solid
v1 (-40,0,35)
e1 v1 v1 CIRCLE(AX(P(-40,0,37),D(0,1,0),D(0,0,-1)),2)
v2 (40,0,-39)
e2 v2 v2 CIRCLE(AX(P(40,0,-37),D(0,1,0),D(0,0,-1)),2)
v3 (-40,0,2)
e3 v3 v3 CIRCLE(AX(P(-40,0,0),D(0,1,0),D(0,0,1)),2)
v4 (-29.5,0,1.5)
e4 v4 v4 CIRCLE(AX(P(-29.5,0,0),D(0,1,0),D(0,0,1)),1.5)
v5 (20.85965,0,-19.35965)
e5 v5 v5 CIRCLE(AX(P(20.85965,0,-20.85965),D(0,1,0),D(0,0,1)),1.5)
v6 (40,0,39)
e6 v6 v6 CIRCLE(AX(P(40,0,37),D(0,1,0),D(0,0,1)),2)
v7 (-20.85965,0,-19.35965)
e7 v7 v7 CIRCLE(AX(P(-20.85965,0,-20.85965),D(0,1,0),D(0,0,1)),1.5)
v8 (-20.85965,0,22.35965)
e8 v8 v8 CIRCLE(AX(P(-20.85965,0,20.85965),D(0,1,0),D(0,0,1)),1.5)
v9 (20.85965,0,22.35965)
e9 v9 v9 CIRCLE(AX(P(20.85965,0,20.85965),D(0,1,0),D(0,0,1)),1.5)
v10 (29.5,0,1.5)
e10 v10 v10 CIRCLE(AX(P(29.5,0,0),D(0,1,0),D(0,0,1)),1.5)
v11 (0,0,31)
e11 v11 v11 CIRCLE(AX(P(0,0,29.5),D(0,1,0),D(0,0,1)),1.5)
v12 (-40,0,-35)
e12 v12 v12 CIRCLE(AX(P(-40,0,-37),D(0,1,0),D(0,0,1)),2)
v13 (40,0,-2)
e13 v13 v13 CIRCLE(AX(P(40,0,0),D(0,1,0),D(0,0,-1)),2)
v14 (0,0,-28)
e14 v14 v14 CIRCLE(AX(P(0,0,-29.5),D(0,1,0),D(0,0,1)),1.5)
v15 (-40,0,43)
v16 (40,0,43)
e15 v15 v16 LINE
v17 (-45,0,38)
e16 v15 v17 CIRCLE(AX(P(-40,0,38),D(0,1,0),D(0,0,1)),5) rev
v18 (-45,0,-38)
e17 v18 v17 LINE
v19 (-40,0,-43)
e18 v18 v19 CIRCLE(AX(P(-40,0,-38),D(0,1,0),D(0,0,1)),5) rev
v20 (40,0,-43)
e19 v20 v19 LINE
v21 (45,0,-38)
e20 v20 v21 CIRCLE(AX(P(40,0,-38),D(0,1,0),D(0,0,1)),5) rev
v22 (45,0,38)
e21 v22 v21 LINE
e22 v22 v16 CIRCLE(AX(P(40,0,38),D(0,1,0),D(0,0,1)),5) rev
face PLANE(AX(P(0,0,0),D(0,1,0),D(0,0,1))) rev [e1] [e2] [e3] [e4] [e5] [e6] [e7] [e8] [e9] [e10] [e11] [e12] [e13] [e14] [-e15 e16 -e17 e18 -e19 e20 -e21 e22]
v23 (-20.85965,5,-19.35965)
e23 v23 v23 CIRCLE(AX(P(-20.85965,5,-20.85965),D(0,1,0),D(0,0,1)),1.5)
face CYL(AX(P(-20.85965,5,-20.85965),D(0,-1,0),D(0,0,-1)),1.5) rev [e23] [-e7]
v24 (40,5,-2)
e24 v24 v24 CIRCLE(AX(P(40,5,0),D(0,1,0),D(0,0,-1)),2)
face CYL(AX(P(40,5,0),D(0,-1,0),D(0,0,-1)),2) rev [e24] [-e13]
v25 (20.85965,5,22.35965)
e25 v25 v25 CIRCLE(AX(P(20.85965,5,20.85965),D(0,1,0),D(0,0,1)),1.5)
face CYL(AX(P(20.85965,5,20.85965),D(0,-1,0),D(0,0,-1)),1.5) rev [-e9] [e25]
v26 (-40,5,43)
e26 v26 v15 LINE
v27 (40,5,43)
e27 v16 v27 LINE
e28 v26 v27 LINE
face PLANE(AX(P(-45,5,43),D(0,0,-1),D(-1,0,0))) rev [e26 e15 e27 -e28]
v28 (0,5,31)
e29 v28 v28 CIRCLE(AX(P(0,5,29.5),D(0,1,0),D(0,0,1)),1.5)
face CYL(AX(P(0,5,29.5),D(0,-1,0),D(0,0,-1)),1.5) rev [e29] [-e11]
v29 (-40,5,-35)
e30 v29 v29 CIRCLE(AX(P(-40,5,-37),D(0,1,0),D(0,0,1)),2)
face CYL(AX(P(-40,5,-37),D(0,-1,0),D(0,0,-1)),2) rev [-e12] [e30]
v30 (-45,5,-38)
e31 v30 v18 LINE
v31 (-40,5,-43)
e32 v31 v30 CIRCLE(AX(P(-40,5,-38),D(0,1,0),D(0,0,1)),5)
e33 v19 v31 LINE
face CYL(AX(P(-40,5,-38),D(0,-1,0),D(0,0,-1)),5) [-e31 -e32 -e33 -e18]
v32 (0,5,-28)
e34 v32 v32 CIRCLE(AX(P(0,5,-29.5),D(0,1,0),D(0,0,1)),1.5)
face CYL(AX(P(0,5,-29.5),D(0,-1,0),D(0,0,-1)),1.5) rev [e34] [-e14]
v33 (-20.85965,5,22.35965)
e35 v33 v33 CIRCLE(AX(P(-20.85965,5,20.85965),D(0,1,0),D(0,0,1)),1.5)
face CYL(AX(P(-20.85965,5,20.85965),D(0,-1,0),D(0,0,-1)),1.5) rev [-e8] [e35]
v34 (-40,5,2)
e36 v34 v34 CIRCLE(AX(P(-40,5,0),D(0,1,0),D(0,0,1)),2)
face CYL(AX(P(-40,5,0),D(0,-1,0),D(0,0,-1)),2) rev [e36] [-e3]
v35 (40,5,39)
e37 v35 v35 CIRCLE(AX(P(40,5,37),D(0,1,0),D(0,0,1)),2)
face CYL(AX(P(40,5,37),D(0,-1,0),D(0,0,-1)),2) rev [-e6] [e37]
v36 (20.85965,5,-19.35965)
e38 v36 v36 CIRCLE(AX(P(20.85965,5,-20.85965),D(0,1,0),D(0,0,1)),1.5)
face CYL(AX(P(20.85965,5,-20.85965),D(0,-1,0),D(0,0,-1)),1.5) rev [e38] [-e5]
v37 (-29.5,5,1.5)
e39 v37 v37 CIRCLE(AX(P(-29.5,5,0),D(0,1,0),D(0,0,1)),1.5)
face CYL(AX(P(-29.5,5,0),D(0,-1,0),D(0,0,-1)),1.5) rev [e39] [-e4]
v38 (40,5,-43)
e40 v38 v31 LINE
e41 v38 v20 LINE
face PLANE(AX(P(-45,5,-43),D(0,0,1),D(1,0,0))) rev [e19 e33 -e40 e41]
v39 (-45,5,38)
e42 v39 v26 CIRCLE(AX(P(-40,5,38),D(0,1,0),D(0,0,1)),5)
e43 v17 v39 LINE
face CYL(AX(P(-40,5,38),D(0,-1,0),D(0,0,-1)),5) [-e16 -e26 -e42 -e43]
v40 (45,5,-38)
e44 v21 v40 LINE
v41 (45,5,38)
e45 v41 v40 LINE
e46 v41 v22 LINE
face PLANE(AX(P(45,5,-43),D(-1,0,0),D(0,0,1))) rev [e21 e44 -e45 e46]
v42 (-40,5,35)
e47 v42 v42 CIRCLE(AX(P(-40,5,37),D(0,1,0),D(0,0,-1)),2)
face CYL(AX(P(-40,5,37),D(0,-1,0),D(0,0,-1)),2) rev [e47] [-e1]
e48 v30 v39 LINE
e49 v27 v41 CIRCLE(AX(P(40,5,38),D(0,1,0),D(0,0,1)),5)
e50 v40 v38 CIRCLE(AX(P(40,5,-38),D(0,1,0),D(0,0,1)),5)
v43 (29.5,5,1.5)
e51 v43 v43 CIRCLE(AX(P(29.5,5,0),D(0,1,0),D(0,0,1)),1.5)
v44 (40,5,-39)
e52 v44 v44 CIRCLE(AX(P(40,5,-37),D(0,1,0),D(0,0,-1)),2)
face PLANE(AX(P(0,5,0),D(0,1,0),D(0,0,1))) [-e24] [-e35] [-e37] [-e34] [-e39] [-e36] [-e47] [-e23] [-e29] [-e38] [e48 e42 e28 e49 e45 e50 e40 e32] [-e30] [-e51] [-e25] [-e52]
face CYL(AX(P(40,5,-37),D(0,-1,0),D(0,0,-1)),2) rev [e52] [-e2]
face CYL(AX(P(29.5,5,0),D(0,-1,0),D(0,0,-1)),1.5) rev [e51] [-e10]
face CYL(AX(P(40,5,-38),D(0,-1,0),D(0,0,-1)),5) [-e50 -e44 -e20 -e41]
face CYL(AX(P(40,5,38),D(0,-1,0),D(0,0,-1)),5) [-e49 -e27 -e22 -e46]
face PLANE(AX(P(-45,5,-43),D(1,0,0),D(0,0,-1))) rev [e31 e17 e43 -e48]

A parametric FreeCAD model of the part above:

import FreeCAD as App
import Part
import Sketcher
Q = App.Units.Quantity


def edges_at(feature, points):
    """Names of the edges that pass closest to the given points."""
    edges = feature.Shape.Edges
    near = lambda p: min(range(len(edges)), key=lambda i: edges[i].distToShape(Part.Vertex(*p))[0])
    return sorted({f"Edge{near(p) + 1}" for p in points})


def add_polygon(sketch, points):
    """Adds a closed chain of lines whose ends are joined by coincident constraints."""
    first, n = sketch.GeometryCount, len(points)
    for a, b in zip(points, points[1:] + points[:1]):
        sketch.addGeometry(Part.LineSegment(App.Vector(*a, 0), App.Vector(*b, 0)), False)
    for i in range(n):
        sketch.addConstraint(Sketcher.Constraint("Coincident", first + i, 2, first + (i + 1) % n, 1))

doc = App.newDocument("Part")
body = doc.addObject("PartDesign::Body", "Body")

sketch1 = body.newObject("Sketcher::SketchObject", "Sketch")
sketch1.AttachmentSupport = (doc.getObject("XZ_Plane"), [""])
sketch1.MapMode = "FlatFace"
add_polygon(sketch1, [(-45, -43), (-45, 43), (45, 43), (45, -43)])
sketch1.addGeometry(Part.Circle(App.Vector(-40, 37, 0), App.Vector(0, 0, 1), 2), False)
sketch1.addGeometry(Part.Circle(App.Vector(-20.85965, 20.85965, 0), App.Vector(0, 0, 1), 1.5), False)
sketch1.addGeometry(Part.Circle(App.Vector(0, 29.5, 0), App.Vector(0, 0, 1), 1.5), False)
sketch1.addGeometry(Part.Circle(App.Vector(20.85965, 20.85965, 0), App.Vector(0, 0, 1), 1.5), False)
sketch1.addGeometry(Part.Circle(App.Vector(40, 37, 0), App.Vector(0, 0, 1), 2), False)
sketch1.addGeometry(Part.Circle(App.Vector(-40, 0, 0), App.Vector(0, 0, 1), 2), False)
sketch1.addGeometry(Part.Circle(App.Vector(-29.5, 0, 0), App.Vector(0, 0, 1), 1.5), False)
sketch1.addGeometry(Part.Circle(App.Vector(-40, -37, 0), App.Vector(0, 0, 1), 2), False)
sketch1.addGeometry(Part.Circle(App.Vector(-20.85965, -20.85965, 0), App.Vector(0, 0, 1), 1.5), False)
sketch1.addGeometry(Part.Circle(App.Vector(29.5, 0, 0), App.Vector(0, 0, 1), 1.5), False)
sketch1.addGeometry(Part.Circle(App.Vector(40, 0, 0), App.Vector(0, 0, 1), 2), False)
sketch1.addGeometry(Part.Circle(App.Vector(20.85965, -20.85965, 0), App.Vector(0, 0, 1), 1.5), False)
sketch1.addGeometry(Part.Circle(App.Vector(0, -29.5, 0), App.Vector(0, 0, 1), 1.5), False)
sketch1.addGeometry(Part.Circle(App.Vector(40, -37, 0), App.Vector(0, 0, 1), 2), False)
sketch1.addConstraint(Sketcher.Constraint("Vertical", 0))
sketch1.addConstraint(Sketcher.Constraint("Horizontal", 1))
sketch1.addConstraint(Sketcher.Constraint("Vertical", 2))
sketch1.addConstraint(Sketcher.Constraint("Horizontal", 3))
sketch1.addConstraint(Sketcher.Constraint("Equal", 5, 6))
sketch1.addConstraint(Sketcher.Constraint("Equal", 6, 7))
sketch1.addConstraint(Sketcher.Constraint("Equal", 4, 8))
sketch1.addConstraint(Sketcher.Constraint("Equal", 8, 9))
sketch1.addConstraint(Sketcher.Constraint("Equal", 7, 10))
sketch1.addConstraint(Sketcher.Constraint("Equal", 9, 11))
sketch1.addConstraint(Sketcher.Constraint("Equal", 10, 12))
sketch1.addConstraint(Sketcher.Constraint("Equal", 12, 13))
sketch1.addConstraint(Sketcher.Constraint("Equal", 11, 14))
sketch1.addConstraint(Sketcher.Constraint("Equal", 13, 15))
sketch1.addConstraint(Sketcher.Constraint("Equal", 15, 16))
sketch1.addConstraint(Sketcher.Constraint("Equal", 14, 17))
sketch1.addConstraint(Sketcher.Constraint("Symmetric", 8, 3, 11, 3, -1, 1))
sketch1.addConstraint(Sketcher.Constraint("Symmetric", 7, 3, 12, 3, -1, 1))
sketch1.addConstraint(Sketcher.Constraint("Symmetric", 10, 3, 13, 3, -1, 1))
sketch1.addConstraint(Sketcher.Constraint("Symmetric", 9, 3, 14, 3, -1, 1))
sketch1.addConstraint(Sketcher.Constraint("Symmetric", 5, 3, 15, 3, -1, 1))
sketch1.addConstraint(Sketcher.Constraint("Symmetric", 6, 3, 16, 3, -1, 1))
sketch1.addConstraint(Sketcher.Constraint("Symmetric", 4, 3, 17, 3, -1, 1))
sketch1.addConstraint(Sketcher.Constraint("Symmetric", 0, 2, 2, 2, -1, 1))
sketch1.addConstraint(Sketcher.Constraint("Symmetric", 5, 3, 7, 3, -2))
sketch1.addConstraint(Sketcher.Constraint("Symmetric", 4, 3, 8, 3, -2))
sketch1.addConstraint(Sketcher.Constraint("PointOnObject", 6, 3, -2))
sketch1.addConstraint(Sketcher.Constraint("PointOnObject", 9, 3, -1))
sketch1.addConstraint(Sketcher.Constraint("PointOnObject", 10, 3, -1))
sketch1.addConstraint(Sketcher.Constraint("Vertical", 4, 3, 9, 3))
sketch1.addConstraint(Sketcher.Constraint("Diameter", 4, Q("4 mm")))
sketch1.addConstraint(Sketcher.Constraint("Diameter", 5, Q("3 mm")))
sketch1.addConstraint(Sketcher.Constraint("DistanceX", 1, 1, 1, 2, Q("90 mm")))
sketch1.addConstraint(Sketcher.Constraint("DistanceY", 0, 1, 0, 2, Q("86 mm")))
sketch1.addConstraint(Sketcher.Constraint("DistanceX", 4, 3, -1, 1, Q("40 mm")))
sketch1.addConstraint(Sketcher.Constraint("DistanceY", -1, 1, 4, 3, Q("37 mm")))
sketch1.addConstraint(Sketcher.Constraint("DistanceY", -1, 1, 6, 3, Q("29.5 mm")))
sketch1.addConstraint(Sketcher.Constraint("DistanceX", 10, 3, -1, 1, Q("29.5 mm")))
sketch1.addConstraint(Sketcher.Constraint("DistanceX", 5, 3, 7, 3, Q("41.7193 mm")))
sketch1.addConstraint(Sketcher.Constraint("DistanceY", 12, 3, 5, 3, Q("41.7193 mm")))
pad1 = body.newObject("PartDesign::Pad", "Pad")
pad1.Profile = sketch1
pad1.Length = 5
pad1.Reversed = True
doc.recompute()

fillet = body.newObject("PartDesign::Fillet", "Fillet")
fillet.Base = (pad1, edges_at(pad1, [
    (-45, 2.5, -43),
    (45, 2.5, -43),
    (45, 2.5, 43),
    (-45, 2.5, 43),
]))
fillet.Radius = 5

doc.recompute()
